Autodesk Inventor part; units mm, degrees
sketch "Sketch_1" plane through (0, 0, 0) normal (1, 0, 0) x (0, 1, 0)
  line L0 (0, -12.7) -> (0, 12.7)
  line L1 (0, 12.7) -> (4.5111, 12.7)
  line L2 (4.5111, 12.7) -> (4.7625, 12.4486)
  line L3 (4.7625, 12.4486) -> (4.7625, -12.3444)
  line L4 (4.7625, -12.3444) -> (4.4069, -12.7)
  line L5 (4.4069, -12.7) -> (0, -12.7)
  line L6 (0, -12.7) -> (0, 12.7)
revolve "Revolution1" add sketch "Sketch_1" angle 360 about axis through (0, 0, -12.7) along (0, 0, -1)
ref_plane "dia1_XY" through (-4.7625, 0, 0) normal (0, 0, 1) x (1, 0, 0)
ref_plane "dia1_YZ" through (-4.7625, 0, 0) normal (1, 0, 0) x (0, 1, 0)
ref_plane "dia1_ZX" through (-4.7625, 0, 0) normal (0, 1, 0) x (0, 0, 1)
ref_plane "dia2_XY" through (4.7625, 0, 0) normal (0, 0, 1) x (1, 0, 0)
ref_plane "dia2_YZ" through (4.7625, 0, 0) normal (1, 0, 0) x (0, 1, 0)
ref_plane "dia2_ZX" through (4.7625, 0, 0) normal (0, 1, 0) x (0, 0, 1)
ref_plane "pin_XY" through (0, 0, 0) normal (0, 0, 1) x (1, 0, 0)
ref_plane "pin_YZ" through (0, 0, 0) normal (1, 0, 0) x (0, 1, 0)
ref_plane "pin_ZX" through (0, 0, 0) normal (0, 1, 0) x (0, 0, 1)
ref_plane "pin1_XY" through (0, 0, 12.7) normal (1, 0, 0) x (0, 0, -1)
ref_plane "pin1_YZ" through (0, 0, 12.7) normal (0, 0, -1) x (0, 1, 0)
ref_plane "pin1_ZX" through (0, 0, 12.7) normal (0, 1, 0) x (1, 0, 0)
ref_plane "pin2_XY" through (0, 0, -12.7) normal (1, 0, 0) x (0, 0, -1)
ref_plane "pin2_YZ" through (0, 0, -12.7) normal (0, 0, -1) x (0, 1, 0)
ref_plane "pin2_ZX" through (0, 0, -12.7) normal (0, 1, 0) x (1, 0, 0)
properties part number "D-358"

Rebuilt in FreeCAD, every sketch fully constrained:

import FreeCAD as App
import Part
import Sketcher

V = App.Vector
Q = App.Units.Quantity


def add_polygon(sketch, points):
    """Adds a closed chain of lines whose ends are joined by coincident constraints."""
    first, n = sketch.GeometryCount, len(points)
    for a, b in zip(points, points[1:] + points[:1]):
        sketch.addGeometry(Part.LineSegment(App.Vector(*a, 0), App.Vector(*b, 0)), False)
    for i in range(n):
        sketch.addConstraint(Sketcher.Constraint("Coincident", first + i, 2, first + (i + 1) % n, 1))

doc = App.newDocument("Part")
body = doc.addObject("PartDesign::Body", "Body")

sketch1 = doc.addObject("Sketcher::SketchObject", "Sketch")
body.addObject(sketch1)
sketch1.AttachmentSupport = (doc.YZ_Plane, [""])
sketch1.MapMode = "FlatFace"
add_polygon(sketch1, [(0, 12.7), (0, -12.7), (4.41, -12.7), (4.76, -12.34), (4.76, 12.45), (4.51, 12.7)])
sketch1.addConstraint([
    Sketcher.Constraint("Vertical", 0),
    Sketcher.Constraint("Horizontal", 1),
    Sketcher.Constraint("Vertical", 3),
    Sketcher.Constraint("Horizontal", 5),
    Sketcher.Constraint("Symmetric", 0, 2, 5, 2, -1, 1),
    Sketcher.Constraint("Perpendicular", 2, 4),
    Sketcher.Constraint("DistanceY", 0, 2, 0, 1, Q("1 in")),
    Sketcher.Constraint("Angle", 2, Q("45 deg")),
    Sketcher.Constraint("Distance", 4, Q("0.014 in")),
    Sketcher.Constraint("DistanceX", 1, 1, 1, 2, Q("0.1735 in")),
    Sketcher.Constraint("DistanceX", 5, 2, 5, 1, Q("0.1776 in")),
])
revolution = doc.addObject("PartDesign::Revolution", "Revolution")
body.addObject(revolution)
revolution.Profile = sketch1
revolution.ReferenceAxis = (sketch1, ["V_Axis"])
revolution.Angle = 360

doc.recompute()
